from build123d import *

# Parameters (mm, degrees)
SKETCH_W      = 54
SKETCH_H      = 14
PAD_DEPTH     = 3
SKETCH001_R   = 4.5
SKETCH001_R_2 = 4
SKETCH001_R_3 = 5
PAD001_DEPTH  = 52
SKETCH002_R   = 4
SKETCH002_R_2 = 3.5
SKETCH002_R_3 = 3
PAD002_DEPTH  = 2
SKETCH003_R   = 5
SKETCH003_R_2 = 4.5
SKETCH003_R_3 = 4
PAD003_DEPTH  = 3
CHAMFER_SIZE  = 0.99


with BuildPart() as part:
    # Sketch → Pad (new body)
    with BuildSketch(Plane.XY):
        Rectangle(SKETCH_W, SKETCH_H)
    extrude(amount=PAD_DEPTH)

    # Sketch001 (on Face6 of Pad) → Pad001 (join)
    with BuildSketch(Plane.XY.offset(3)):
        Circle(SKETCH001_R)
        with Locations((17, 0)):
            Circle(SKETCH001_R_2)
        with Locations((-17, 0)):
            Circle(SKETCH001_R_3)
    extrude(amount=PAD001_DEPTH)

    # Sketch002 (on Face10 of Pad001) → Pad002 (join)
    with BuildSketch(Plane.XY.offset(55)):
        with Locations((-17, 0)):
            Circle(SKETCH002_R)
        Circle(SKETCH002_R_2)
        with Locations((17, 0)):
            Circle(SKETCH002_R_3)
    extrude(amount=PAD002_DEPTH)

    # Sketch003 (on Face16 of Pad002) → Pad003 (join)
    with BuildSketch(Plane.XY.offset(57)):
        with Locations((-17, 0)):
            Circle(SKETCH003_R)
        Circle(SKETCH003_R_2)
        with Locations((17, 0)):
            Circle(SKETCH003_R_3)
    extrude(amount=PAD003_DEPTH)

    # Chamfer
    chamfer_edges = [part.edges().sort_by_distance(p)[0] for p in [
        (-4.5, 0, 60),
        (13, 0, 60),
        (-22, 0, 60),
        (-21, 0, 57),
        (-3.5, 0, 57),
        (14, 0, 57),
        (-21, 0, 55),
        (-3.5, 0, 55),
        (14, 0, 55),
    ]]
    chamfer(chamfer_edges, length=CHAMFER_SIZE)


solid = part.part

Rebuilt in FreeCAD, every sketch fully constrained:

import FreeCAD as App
import Part
import Sketcher


def edges_at(feature, points):
    """Names of the edges that pass closest to the given points."""
    edges = feature.Shape.Edges
    near = lambda p: min(range(len(edges)), key=lambda i: edges[i].distToShape(Part.Vertex(*p))[0])
    return sorted({f"Edge{near(p) + 1}" for p in points})

doc = App.newDocument("Part")
body = doc.addObject("PartDesign::Body", "Body")

sketch1 = body.newObject("Sketcher::SketchObject", "Sketch")
sketch1.AttachmentSupport = (doc.getObject("XY_Plane"), [""])
sketch1.MapMode = "FlatFace"
sketch1.addGeometry(Part.LineSegment(App.Vector(-27, 7, 0), App.Vector(-27, -7, 0)), False)
sketch1.addGeometry(Part.LineSegment(App.Vector(-27, -7, 0), App.Vector(27, -7, 0)), False)
sketch1.addGeometry(Part.LineSegment(App.Vector(27, -7, 0), App.Vector(27, 7, 0)), False)
sketch1.addGeometry(Part.LineSegment(App.Vector(27, 7, 0), App.Vector(-27, 7, 0)), False)
sketch1.addConstraint(Sketcher.Constraint("Coincident", 0, 2, 1, 1))
sketch1.addConstraint(Sketcher.Constraint("Coincident", 1, 2, 2, 1))
sketch1.addConstraint(Sketcher.Constraint("Coincident", 2, 2, 3, 1))
sketch1.addConstraint(Sketcher.Constraint("Coincident", 3, 2, 0, 1))
sketch1.addConstraint(Sketcher.Constraint("Vertical", 0))
sketch1.addConstraint(Sketcher.Constraint("Horizontal", 1))
sketch1.addConstraint(Sketcher.Constraint("Vertical", 2))
sketch1.addConstraint(Sketcher.Constraint("Horizontal", 3))
sketch1.addConstraint(Sketcher.Constraint("Symmetric", 0, 2, 2, 2, -1, 1))
sketch1.addConstraint(Sketcher.Constraint("DistanceX", 1, 1, 1, 2, 54.0))
sketch1.addConstraint(Sketcher.Constraint("DistanceY", 0, 2, 0, 1, 14.0))
pad1 = body.newObject("PartDesign::Pad", "Pad")
pad1.Profile = sketch1
pad1.Length = 3

sketch2 = body.newObject("Sketcher::SketchObject", "Sketch001")
sketch2.AttachmentSupport = (doc.getObject("XY_Plane"), [""])
sketch2.MapMode = "FlatFace"
sketch2.AttachmentOffset = App.Placement(App.Vector(0, 0, 3), App.Rotation())
sketch2.addGeometry(Part.Circle(App.Vector(0, 0, 0), App.Vector(0, 0, 1), 4.5), False)
sketch2.addGeometry(Part.Circle(App.Vector(17, 0, 0), App.Vector(0, 0, 1), 4), False)
sketch2.addGeometry(Part.Circle(App.Vector(-17, 0, 0), App.Vector(0, 0, 1), 5), False)
sketch2.addConstraint(Sketcher.Constraint("Coincident", 0, 3, -1, 1))
sketch2.addConstraint(Sketcher.Constraint("Symmetric", 1, 3, 2, 3, -1, 1))
sketch2.addConstraint(Sketcher.Constraint("PointOnObject", 1, 3, -1))
sketch2.addConstraint(Sketcher.Constraint("Diameter", 0, 9.0))
sketch2.addConstraint(Sketcher.Constraint("Diameter", 1, 8.0))
sketch2.addConstraint(Sketcher.Constraint("Diameter", 2, 10.0))
sketch2.addConstraint(Sketcher.Constraint("DistanceX", -1, 1, 1, 3, 17.0))
pad2 = body.newObject("PartDesign::Pad", "Pad001")
pad2.Profile = sketch2
pad2.Length = 52

sketch3 = body.newObject("Sketcher::SketchObject", "Sketch002")
sketch3.AttachmentSupport = (doc.getObject("XY_Plane"), [""])
sketch3.MapMode = "FlatFace"
sketch3.AttachmentOffset = App.Placement(App.Vector(0, 0, 55), App.Rotation())
sketch3.addGeometry(Part.Circle(App.Vector(-17, 0, 0), App.Vector(0, 0, 1), 4), False)
sketch3.addGeometry(Part.Circle(App.Vector(0, 0, 0), App.Vector(0, 0, 1), 3.5), False)
sketch3.addGeometry(Part.Circle(App.Vector(17, 0, 0), App.Vector(0, 0, 1), 3), False)
sketch3.addConstraint(Sketcher.Constraint("Coincident", 1, 3, -1, 1))
sketch3.addConstraint(Sketcher.Constraint("Symmetric", 0, 3, 2, 3, -1, 1))
sketch3.addConstraint(Sketcher.Constraint("PointOnObject", 0, 3, -1))
sketch3.addConstraint(Sketcher.Constraint("Diameter", 0, 8.0))
sketch3.addConstraint(Sketcher.Constraint("Diameter", 1, 7.0))
sketch3.addConstraint(Sketcher.Constraint("Diameter", 2, 6.0))
sketch3.addConstraint(Sketcher.Constraint("DistanceX", 0, 3, -1, 1, 17.0))
pad3 = body.newObject("PartDesign::Pad", "Pad002")
pad3.Profile = sketch3
pad3.Length = 2

sketch4 = body.newObject("Sketcher::SketchObject", "Sketch003")
sketch4.AttachmentSupport = (doc.getObject("XY_Plane"), [""])
sketch4.MapMode = "FlatFace"
sketch4.AttachmentOffset = App.Placement(App.Vector(0, 0, 57), App.Rotation())
sketch4.addGeometry(Part.Circle(App.Vector(-17, 0, 0), App.Vector(0, 0, 1), 5), False)
sketch4.addGeometry(Part.Circle(App.Vector(0, 0, 0), App.Vector(0, 0, 1), 4.5), False)
sketch4.addGeometry(Part.Circle(App.Vector(17, 0, 0), App.Vector(0, 0, 1), 4), False)
sketch4.addConstraint(Sketcher.Constraint("Coincident", 1, 3, -1, 1))
sketch4.addConstraint(Sketcher.Constraint("Symmetric", 0, 3, 2, 3, -1, 1))
sketch4.addConstraint(Sketcher.Constraint("PointOnObject", 0, 3, -1))
sketch4.addConstraint(Sketcher.Constraint("Diameter", 0, 10.0))
sketch4.addConstraint(Sketcher.Constraint("Diameter", 1, 9.0))
sketch4.addConstraint(Sketcher.Constraint("Diameter", 2, 8.0))
sketch4.addConstraint(Sketcher.Constraint("DistanceX", 0, 3, -1, 1, 17.0))
pad4 = body.newObject("PartDesign::Pad", "Pad003")
pad4.Profile = sketch4
pad4.Length = 3
doc.recompute()

chamfer = body.newObject("PartDesign::Chamfer", "Chamfer")
chamfer.Base = (pad4, edges_at(pad4, [
    (-4.5, 0, 60),
    (13, 0, 60),
    (-22, 0, 60),
    (-21, 0, 57),
    (-3.5, 0, 57),
    (14, 0, 57),
    (-21, 0, 55),
    (-3.5, 0, 55),
    (14, 0, 55),
]))
chamfer.Size = 0.99

doc.recompute()
